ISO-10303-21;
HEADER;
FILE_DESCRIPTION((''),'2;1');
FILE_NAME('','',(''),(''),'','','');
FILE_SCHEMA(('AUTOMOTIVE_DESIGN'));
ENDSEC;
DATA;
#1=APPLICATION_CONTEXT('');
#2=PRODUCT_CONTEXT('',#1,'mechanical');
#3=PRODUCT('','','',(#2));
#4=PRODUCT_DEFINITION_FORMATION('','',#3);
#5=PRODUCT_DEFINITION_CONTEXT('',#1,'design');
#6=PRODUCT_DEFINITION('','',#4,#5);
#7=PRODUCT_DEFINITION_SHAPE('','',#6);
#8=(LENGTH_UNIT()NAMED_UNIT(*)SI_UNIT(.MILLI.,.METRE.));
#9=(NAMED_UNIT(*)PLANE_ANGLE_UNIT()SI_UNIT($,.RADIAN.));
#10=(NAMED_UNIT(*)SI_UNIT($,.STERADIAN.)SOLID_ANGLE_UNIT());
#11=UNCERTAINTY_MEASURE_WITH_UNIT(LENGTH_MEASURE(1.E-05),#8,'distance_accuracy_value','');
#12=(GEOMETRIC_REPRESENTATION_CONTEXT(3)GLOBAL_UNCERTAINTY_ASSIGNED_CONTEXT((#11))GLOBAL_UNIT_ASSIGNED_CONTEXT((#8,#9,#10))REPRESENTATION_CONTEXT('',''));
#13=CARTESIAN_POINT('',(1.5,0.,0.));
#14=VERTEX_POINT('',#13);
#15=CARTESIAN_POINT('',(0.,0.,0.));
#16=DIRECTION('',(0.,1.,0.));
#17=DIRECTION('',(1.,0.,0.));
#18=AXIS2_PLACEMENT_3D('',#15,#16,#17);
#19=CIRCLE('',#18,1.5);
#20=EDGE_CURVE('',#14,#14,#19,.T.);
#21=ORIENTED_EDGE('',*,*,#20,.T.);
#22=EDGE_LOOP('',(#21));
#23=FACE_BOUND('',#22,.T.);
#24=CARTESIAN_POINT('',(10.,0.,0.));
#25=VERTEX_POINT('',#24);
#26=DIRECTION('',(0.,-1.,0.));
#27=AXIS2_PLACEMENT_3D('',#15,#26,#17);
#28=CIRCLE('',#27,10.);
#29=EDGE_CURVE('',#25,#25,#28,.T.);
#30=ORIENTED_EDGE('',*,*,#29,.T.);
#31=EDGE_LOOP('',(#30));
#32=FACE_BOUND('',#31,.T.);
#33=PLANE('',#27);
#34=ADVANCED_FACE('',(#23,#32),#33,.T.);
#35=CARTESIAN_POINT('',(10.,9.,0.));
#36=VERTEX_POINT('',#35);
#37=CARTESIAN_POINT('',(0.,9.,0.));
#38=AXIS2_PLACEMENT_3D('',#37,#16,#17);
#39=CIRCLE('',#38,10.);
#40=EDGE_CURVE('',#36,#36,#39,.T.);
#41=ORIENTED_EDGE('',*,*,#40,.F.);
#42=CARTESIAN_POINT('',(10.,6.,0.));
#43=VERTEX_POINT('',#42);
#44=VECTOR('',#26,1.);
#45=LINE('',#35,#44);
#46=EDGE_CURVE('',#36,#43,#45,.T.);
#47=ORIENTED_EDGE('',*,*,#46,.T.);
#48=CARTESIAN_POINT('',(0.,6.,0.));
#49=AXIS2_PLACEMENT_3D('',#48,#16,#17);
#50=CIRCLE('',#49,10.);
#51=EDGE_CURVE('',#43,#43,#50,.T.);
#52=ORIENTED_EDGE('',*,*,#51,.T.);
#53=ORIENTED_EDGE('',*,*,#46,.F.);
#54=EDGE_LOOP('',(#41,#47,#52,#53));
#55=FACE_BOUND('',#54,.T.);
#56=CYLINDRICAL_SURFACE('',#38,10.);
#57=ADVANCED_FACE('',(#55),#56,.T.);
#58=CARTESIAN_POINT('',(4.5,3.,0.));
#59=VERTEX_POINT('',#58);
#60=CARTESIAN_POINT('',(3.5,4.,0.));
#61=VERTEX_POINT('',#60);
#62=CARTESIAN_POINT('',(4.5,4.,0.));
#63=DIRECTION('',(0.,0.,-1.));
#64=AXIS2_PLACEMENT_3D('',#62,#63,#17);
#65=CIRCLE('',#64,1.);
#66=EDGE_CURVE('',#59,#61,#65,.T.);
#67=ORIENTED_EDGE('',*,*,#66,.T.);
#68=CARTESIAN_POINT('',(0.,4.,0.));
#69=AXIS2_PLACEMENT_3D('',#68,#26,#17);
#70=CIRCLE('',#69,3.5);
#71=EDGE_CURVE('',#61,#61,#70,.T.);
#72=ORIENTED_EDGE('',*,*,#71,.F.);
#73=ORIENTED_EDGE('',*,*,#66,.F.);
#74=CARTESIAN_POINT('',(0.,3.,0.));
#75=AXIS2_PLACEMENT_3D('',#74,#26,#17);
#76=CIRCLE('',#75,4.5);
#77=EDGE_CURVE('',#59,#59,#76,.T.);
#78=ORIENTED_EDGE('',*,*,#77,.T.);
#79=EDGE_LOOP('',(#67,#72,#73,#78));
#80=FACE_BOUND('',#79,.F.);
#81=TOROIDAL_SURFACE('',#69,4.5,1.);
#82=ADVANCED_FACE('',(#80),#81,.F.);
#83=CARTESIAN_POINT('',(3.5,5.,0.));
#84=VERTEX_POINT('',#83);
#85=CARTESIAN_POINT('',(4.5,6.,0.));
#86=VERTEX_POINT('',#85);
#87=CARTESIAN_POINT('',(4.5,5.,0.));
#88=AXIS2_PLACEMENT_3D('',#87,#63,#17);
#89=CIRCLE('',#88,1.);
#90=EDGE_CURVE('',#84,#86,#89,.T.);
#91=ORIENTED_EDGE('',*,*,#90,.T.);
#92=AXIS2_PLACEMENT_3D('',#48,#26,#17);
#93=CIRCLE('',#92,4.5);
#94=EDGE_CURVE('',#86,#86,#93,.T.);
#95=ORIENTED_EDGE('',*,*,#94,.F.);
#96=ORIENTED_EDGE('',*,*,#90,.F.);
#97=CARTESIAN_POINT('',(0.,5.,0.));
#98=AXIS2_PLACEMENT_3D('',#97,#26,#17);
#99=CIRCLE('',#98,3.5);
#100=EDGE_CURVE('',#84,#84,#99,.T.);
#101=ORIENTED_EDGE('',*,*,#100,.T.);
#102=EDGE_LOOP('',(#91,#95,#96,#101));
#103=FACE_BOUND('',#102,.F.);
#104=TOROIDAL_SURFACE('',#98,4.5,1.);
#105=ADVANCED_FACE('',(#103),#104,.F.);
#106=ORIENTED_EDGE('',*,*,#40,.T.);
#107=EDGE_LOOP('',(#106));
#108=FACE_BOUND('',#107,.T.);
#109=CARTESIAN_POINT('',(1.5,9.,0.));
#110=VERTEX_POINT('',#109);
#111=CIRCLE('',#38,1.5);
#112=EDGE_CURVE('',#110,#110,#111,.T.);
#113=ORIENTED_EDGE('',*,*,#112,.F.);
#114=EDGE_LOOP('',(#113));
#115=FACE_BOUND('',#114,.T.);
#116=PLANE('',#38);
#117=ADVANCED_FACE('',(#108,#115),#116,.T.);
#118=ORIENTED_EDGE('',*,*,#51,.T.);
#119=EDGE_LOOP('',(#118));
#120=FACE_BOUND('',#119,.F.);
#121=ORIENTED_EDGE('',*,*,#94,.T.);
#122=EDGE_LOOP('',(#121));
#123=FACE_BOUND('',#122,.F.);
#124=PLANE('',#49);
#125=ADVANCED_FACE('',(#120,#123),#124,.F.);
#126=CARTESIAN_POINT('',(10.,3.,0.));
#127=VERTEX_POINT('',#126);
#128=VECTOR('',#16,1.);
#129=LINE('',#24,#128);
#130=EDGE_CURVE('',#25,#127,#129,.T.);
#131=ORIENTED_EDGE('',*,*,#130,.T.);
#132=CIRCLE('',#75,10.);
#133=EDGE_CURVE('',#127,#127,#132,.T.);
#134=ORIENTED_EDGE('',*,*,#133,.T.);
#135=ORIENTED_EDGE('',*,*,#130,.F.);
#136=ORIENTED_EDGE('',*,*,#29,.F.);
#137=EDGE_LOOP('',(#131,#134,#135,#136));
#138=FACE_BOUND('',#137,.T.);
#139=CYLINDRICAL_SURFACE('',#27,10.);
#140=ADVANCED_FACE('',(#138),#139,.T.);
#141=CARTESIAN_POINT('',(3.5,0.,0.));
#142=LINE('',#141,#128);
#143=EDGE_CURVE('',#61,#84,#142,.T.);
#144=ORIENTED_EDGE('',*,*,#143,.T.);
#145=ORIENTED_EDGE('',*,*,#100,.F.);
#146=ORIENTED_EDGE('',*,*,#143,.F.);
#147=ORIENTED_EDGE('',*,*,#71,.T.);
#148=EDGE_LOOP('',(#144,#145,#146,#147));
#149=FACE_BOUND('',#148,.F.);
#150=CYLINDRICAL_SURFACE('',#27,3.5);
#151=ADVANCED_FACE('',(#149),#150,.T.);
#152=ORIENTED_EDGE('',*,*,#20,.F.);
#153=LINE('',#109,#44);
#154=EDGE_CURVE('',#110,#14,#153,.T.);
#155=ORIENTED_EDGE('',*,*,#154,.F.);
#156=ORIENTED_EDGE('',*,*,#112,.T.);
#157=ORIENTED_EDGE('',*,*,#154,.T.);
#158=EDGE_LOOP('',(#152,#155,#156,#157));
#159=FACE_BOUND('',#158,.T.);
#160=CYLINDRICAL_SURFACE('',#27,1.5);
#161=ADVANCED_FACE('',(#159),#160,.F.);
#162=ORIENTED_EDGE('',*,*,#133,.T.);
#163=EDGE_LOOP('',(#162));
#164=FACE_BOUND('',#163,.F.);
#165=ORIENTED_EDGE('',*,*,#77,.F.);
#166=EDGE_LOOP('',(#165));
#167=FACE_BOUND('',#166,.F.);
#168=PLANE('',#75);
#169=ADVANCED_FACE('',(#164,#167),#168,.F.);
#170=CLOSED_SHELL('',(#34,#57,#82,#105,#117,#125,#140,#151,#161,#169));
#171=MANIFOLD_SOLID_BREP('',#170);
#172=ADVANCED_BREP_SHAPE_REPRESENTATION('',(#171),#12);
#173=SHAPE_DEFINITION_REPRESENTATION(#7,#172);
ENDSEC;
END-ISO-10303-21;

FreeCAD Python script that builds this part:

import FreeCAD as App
import Part
import Sketcher
from FreeCAD import Vector


def edges_at(feature, points):
    """Names of the edges that pass closest to the given points."""
    edges = feature.Shape.Edges
    near = lambda p: min(range(len(edges)), key=lambda i: edges[i].distToShape(Part.Vertex(*p))[0])
    return sorted({f"Edge{near(p) + 1}" for p in points})

doc = App.newDocument("Part")
body = doc.addObject("PartDesign::Body", "Body")

sketch1 = body.newObject("Sketcher::SketchObject", "Sketch")
sketch1.AttachmentSupport = (doc.getObject("XZ_Plane"), [""])
sketch1.MapMode = "FlatFace"
sketch1.addGeometry([
    Part.Circle(Vector(0, 0, 0), Vector(0, 0, 1), 3.5),
    Part.Circle(Vector(0, 0, 0), Vector(0, 0, 1), 1.5),
], False)
sketch1.addConstraint([
    Sketcher.Constraint("Coincident", 0, 3, -1, 1),
    Sketcher.Constraint("Coincident", 1, 3, -1, 1),
    Sketcher.Constraint("Diameter", 0, 7.0),
    Sketcher.Constraint("Diameter", 1, 3.0),
])
pad1 = body.newObject("PartDesign::Pad", "Pad")
pad1.Profile = sketch1
pad1.Length = 9
pad1.Reversed = True

sketch2 = body.newObject("Sketcher::SketchObject", "Sketch001")
sketch2.AttachmentSupport = (doc.getObject("XZ_Plane"), [""])
sketch2.MapMode = "FlatFace"
sketch2.AttachmentOffset = App.Placement(Vector(0, 0, -9), App.Rotation())
sketch2.addGeometry([
    Part.Circle(Vector(0, 0, 0), Vector(0, 0, 1), 6),
    Part.Circle(Vector(0, 0, 0), Vector(0, 0, 1), 1.5),
], False)
sketch2.addConstraint([
    Sketcher.Constraint("Coincident", 0, 3, -1, 1),
    Sketcher.Constraint("Coincident", 1, 3, -1, 1),
    Sketcher.Constraint("Diameter", 0, 12.0),
    Sketcher.Constraint("Diameter", 1, 3.0),
])
pad2 = body.newObject("PartDesign::Pad", "Pad001")
pad2.Profile = sketch2
pad2.Length = 3

sketch3 = body.newObject("Sketcher::SketchObject", "Sketch002")
sketch3.AttachmentSupport = (doc.getObject("XZ_Plane"), [""])
sketch3.MapMode = "FlatFace"
sketch3.addGeometry([
    Part.Circle(Vector(0, 0, 0), Vector(0, 0, 1), 5),
    Part.Circle(Vector(0, 0, 0), Vector(0, 0, 1), 1.5),
], False)
sketch3.addConstraint([
    Sketcher.Constraint("Coincident", 0, 3, -1, 1),
    Sketcher.Constraint("Coincident", 1, 3, -1, 1),
    Sketcher.Constraint("Diameter", 0, 10.0),
    Sketcher.Constraint("Diameter", 1, 3.0),
])
pad3 = body.newObject("PartDesign::Pad", "Pad002")
pad3.Profile = sketch3
pad3.Length = 3
pad3.Reversed = True
doc.recompute()

fillet = body.newObject("PartDesign::Fillet", "Fillet")
fillet.Base = (pad3, edges_at(pad3, [(-3.5, 6, 0), (-3.5, 3, 0)]))
fillet.Radius = 1

sketch4 = body.newObject("Sketcher::SketchObject", "Sketch003")
sketch4.AttachmentSupport = (doc.getObject("XZ_Plane"), [""])
sketch4.MapMode = "FlatFace"
sketch4.addGeometry([
    Part.Circle(Vector(0, 0, 0), Vector(0, 0, 1), 10),
    Part.Circle(Vector(0, 0, 0), Vector(0, 0, 1), 1.5),
], False)
sketch4.addConstraint([
    Sketcher.Constraint("Coincident", 0, 3, -1, 1),
    Sketcher.Constraint("Coincident", 1, 3, -1, 1),
    Sketcher.Constraint("Diameter", 0, 20.0),
    Sketcher.Constraint("Diameter", 1, 3.0),
])
pad4 = body.newObject("PartDesign::Pad", "Pad003")
pad4.Profile = sketch4
pad4.Length = 3
pad4.Reversed = True

sketch5 = body.newObject("Sketcher::SketchObject", "Sketch004")
sketch5.AttachmentSupport = (doc.getObject("XZ_Plane"), [""])
sketch5.MapMode = "FlatFace"
sketch5.AttachmentOffset = App.Placement(Vector(0, 0, -9), App.Rotation())
sketch5.addGeometry([
    Part.Circle(Vector(0, 0, 0), Vector(0, 0, 1), 10),
    Part.Circle(Vector(0, 0, 0), Vector(0, 0, 1), 1.5),
], False)
sketch5.addConstraint([
    Sketcher.Constraint("Coincident", 0, 3, -1, 1),
    Sketcher.Constraint("Coincident", 1, 3, -1, 1),
    Sketcher.Constraint("Diameter", 0, 20.0),
    Sketcher.Constraint("Diameter", 1, 3.0),
])
pad5 = body.newObject("PartDesign::Pad", "Pad004")
pad5.Profile = sketch5
pad5.Length = 3

doc.recompute()
